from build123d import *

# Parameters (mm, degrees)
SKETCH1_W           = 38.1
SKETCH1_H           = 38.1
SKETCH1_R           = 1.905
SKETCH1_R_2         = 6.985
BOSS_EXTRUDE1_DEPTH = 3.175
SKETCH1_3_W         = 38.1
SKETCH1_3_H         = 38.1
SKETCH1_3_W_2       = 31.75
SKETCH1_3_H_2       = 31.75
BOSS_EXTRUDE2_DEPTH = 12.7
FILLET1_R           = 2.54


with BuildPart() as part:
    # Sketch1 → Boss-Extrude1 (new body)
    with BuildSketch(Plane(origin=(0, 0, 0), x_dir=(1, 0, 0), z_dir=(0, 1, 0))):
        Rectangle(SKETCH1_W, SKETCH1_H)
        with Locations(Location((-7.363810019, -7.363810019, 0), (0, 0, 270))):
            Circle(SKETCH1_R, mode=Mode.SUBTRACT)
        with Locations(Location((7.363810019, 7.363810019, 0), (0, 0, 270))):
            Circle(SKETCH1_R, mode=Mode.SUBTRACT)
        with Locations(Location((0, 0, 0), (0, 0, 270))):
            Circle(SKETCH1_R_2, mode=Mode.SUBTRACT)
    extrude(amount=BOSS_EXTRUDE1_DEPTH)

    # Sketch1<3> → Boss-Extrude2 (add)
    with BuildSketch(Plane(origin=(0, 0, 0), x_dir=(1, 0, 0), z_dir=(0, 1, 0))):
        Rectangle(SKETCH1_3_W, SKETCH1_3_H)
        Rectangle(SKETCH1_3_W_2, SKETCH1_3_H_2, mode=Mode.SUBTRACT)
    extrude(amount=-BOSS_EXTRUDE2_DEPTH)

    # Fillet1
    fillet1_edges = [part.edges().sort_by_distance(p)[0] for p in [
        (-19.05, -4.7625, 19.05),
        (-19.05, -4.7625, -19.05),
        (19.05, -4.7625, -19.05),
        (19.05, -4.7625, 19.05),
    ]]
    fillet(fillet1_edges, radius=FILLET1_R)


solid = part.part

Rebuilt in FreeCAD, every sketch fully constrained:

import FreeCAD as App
import Part
import Sketcher
Q = App.Units.Quantity


def edges_at(feature, points):
    """Names of the edges that pass closest to the given points."""
    edges = feature.Shape.Edges
    near = lambda p: min(range(len(edges)), key=lambda i: edges[i].distToShape(Part.Vertex(*p))[0])
    return sorted({f"Edge{near(p) + 1}" for p in points})

doc = App.newDocument("Part")
body = doc.addObject("PartDesign::Body", "Body")

# Sketch on XZ plane
sketch1 = body.newObject("Sketcher::SketchObject", "Sketch")
sketch1.AttachmentSupport = (doc.getObject("XZ_Plane"), [""])
sketch1.MapMode = "FlatFace"
sketch1.addGeometry([
    Part.LineSegment(App.Vector(-19.1, -19.1, 0), App.Vector(-19.1, 19.1, 0)),  # 0
    Part.LineSegment(App.Vector(-19.1, 19.1, 0), App.Vector(19.1, 19.1, 0)),  # 1
    Part.LineSegment(App.Vector(19.1, 19.1, 0), App.Vector(19.1, -19.1, 0)),  # 2
    Part.LineSegment(App.Vector(19.1, -19.1, 0), App.Vector(-19.1, -19.1, 0)),  # 3
    Part.Circle(App.Vector(-7.4, 7.4, 0), App.Vector(0, 0, 1), 1.9),  # 4
    Part.Circle(App.Vector(0, 0, 0), App.Vector(0, 0, 1), 7),  # 5
    Part.Circle(App.Vector(7.4, -7.4, 0), App.Vector(0, 0, 1), 1.9),  # 6
], False)
sketch1.addConstraint([
    Sketcher.Constraint("Coincident", 0, 2, 1, 1),
    Sketcher.Constraint("Coincident", 1, 2, 2, 1),
    Sketcher.Constraint("Coincident", 2, 2, 3, 1),
    Sketcher.Constraint("Coincident", 3, 2, 0, 1),
    Sketcher.Constraint("Vertical", 0),
    Sketcher.Constraint("Horizontal", 1),
    Sketcher.Constraint("Vertical", 2),
    Sketcher.Constraint("Horizontal", 3),
    Sketcher.Constraint("Coincident", 5, 3, -1, 1),
    Sketcher.Constraint("Equal", 4, 6),
    Sketcher.Constraint("Symmetric", 4, 3, 6, 3, -1, 1),
    Sketcher.Constraint("Symmetric", 0, 2, 2, 2, -1, 1),
    Sketcher.Constraint("Equal", 3, 0),
    Sketcher.Constraint("Diameter", 4, Q("0.15 in")),
    Sketcher.Constraint("Diameter", 5, Q("0.55 in")),
    Sketcher.Constraint("DistanceX", 1, 1, 1, 2, Q("1.5 in")),
    Sketcher.Constraint("DistanceX", 4, 3, -1, 1, Q("7.36381 mm")),
    Sketcher.Constraint("DistanceY", -1, 1, 4, 3, Q("7.36381 mm")),
])
pad1 = body.newObject("PartDesign::Pad", "Pad")
pad1.Profile = sketch1
pad1.Length = Q("0.125 in")
pad1.Reversed = True

# Sketch on XZ plane
sketch2 = body.newObject("Sketcher::SketchObject", "Sketch001")
sketch2.AttachmentSupport = (doc.getObject("XZ_Plane"), [""])
sketch2.MapMode = "FlatFace"
sketch2.addGeometry([
    Part.LineSegment(App.Vector(-19, -19, 0), App.Vector(-19, 19, 0)),  # 0
    Part.LineSegment(App.Vector(-19, 19, 0), App.Vector(19, 19, 0)),  # 1
    Part.LineSegment(App.Vector(19, 19, 0), App.Vector(19, -19, 0)),  # 2
    Part.LineSegment(App.Vector(19, -19, 0), App.Vector(-19, -19, 0)),  # 3
    Part.LineSegment(App.Vector(16, 16, 0), App.Vector(-16, 16, 0)),  # 4
    Part.LineSegment(App.Vector(-16, 16, 0), App.Vector(-16, -16, 0)),  # 5
    Part.LineSegment(App.Vector(-16, -16, 0), App.Vector(16, -16, 0)),  # 6
    Part.LineSegment(App.Vector(16, -16, 0), App.Vector(16, 16, 0)),  # 7
], False)
sketch2.addConstraint([
    Sketcher.Constraint("Coincident", 0, 2, 1, 1),
    Sketcher.Constraint("Coincident", 1, 2, 2, 1),
    Sketcher.Constraint("Coincident", 2, 2, 3, 1),
    Sketcher.Constraint("Coincident", 3, 2, 0, 1),
    Sketcher.Constraint("Coincident", 4, 2, 5, 1),
    Sketcher.Constraint("Coincident", 5, 2, 6, 1),
    Sketcher.Constraint("Coincident", 6, 2, 7, 1),
    Sketcher.Constraint("Coincident", 7, 2, 4, 1),
    Sketcher.Constraint("Vertical", 0),
    Sketcher.Constraint("Horizontal", 1),
    Sketcher.Constraint("Vertical", 2),
    Sketcher.Constraint("Horizontal", 3),
    Sketcher.Constraint("Horizontal", 4),
    Sketcher.Constraint("Vertical", 5),
    Sketcher.Constraint("Horizontal", 6),
    Sketcher.Constraint("Vertical", 7),
    Sketcher.Constraint("Symmetric", 0, 2, 2, 2, -1, 1),
    Sketcher.Constraint("Symmetric", 4, 2, 6, 2, -1, 1),
    Sketcher.Constraint("Equal", 3, 0),
    Sketcher.Constraint("Equal", 6, 5),
    Sketcher.Constraint("DistanceX", 1, 1, 1, 2, Q("1.5 in")),
    Sketcher.Constraint("DistanceX", 4, 2, 4, 1, Q("1.25 in")),
])
pad2 = body.newObject("PartDesign::Pad", "Pad001")
pad2.Profile = sketch2
pad2.Length = Q("0.5 in")
doc.recompute()

fillet = body.newObject("PartDesign::Fillet", "Fillet")
fillet.Base = (pad2, edges_at(pad2, [
    (-19.05, -4.763, 19.05),
    (-19.05, -4.763, -19.05),
    (19.05, -4.763, -19.05),
    (19.05, -4.763, 19.05),
]))
fillet.Radius = Q("0.1 in")

doc.recompute()
